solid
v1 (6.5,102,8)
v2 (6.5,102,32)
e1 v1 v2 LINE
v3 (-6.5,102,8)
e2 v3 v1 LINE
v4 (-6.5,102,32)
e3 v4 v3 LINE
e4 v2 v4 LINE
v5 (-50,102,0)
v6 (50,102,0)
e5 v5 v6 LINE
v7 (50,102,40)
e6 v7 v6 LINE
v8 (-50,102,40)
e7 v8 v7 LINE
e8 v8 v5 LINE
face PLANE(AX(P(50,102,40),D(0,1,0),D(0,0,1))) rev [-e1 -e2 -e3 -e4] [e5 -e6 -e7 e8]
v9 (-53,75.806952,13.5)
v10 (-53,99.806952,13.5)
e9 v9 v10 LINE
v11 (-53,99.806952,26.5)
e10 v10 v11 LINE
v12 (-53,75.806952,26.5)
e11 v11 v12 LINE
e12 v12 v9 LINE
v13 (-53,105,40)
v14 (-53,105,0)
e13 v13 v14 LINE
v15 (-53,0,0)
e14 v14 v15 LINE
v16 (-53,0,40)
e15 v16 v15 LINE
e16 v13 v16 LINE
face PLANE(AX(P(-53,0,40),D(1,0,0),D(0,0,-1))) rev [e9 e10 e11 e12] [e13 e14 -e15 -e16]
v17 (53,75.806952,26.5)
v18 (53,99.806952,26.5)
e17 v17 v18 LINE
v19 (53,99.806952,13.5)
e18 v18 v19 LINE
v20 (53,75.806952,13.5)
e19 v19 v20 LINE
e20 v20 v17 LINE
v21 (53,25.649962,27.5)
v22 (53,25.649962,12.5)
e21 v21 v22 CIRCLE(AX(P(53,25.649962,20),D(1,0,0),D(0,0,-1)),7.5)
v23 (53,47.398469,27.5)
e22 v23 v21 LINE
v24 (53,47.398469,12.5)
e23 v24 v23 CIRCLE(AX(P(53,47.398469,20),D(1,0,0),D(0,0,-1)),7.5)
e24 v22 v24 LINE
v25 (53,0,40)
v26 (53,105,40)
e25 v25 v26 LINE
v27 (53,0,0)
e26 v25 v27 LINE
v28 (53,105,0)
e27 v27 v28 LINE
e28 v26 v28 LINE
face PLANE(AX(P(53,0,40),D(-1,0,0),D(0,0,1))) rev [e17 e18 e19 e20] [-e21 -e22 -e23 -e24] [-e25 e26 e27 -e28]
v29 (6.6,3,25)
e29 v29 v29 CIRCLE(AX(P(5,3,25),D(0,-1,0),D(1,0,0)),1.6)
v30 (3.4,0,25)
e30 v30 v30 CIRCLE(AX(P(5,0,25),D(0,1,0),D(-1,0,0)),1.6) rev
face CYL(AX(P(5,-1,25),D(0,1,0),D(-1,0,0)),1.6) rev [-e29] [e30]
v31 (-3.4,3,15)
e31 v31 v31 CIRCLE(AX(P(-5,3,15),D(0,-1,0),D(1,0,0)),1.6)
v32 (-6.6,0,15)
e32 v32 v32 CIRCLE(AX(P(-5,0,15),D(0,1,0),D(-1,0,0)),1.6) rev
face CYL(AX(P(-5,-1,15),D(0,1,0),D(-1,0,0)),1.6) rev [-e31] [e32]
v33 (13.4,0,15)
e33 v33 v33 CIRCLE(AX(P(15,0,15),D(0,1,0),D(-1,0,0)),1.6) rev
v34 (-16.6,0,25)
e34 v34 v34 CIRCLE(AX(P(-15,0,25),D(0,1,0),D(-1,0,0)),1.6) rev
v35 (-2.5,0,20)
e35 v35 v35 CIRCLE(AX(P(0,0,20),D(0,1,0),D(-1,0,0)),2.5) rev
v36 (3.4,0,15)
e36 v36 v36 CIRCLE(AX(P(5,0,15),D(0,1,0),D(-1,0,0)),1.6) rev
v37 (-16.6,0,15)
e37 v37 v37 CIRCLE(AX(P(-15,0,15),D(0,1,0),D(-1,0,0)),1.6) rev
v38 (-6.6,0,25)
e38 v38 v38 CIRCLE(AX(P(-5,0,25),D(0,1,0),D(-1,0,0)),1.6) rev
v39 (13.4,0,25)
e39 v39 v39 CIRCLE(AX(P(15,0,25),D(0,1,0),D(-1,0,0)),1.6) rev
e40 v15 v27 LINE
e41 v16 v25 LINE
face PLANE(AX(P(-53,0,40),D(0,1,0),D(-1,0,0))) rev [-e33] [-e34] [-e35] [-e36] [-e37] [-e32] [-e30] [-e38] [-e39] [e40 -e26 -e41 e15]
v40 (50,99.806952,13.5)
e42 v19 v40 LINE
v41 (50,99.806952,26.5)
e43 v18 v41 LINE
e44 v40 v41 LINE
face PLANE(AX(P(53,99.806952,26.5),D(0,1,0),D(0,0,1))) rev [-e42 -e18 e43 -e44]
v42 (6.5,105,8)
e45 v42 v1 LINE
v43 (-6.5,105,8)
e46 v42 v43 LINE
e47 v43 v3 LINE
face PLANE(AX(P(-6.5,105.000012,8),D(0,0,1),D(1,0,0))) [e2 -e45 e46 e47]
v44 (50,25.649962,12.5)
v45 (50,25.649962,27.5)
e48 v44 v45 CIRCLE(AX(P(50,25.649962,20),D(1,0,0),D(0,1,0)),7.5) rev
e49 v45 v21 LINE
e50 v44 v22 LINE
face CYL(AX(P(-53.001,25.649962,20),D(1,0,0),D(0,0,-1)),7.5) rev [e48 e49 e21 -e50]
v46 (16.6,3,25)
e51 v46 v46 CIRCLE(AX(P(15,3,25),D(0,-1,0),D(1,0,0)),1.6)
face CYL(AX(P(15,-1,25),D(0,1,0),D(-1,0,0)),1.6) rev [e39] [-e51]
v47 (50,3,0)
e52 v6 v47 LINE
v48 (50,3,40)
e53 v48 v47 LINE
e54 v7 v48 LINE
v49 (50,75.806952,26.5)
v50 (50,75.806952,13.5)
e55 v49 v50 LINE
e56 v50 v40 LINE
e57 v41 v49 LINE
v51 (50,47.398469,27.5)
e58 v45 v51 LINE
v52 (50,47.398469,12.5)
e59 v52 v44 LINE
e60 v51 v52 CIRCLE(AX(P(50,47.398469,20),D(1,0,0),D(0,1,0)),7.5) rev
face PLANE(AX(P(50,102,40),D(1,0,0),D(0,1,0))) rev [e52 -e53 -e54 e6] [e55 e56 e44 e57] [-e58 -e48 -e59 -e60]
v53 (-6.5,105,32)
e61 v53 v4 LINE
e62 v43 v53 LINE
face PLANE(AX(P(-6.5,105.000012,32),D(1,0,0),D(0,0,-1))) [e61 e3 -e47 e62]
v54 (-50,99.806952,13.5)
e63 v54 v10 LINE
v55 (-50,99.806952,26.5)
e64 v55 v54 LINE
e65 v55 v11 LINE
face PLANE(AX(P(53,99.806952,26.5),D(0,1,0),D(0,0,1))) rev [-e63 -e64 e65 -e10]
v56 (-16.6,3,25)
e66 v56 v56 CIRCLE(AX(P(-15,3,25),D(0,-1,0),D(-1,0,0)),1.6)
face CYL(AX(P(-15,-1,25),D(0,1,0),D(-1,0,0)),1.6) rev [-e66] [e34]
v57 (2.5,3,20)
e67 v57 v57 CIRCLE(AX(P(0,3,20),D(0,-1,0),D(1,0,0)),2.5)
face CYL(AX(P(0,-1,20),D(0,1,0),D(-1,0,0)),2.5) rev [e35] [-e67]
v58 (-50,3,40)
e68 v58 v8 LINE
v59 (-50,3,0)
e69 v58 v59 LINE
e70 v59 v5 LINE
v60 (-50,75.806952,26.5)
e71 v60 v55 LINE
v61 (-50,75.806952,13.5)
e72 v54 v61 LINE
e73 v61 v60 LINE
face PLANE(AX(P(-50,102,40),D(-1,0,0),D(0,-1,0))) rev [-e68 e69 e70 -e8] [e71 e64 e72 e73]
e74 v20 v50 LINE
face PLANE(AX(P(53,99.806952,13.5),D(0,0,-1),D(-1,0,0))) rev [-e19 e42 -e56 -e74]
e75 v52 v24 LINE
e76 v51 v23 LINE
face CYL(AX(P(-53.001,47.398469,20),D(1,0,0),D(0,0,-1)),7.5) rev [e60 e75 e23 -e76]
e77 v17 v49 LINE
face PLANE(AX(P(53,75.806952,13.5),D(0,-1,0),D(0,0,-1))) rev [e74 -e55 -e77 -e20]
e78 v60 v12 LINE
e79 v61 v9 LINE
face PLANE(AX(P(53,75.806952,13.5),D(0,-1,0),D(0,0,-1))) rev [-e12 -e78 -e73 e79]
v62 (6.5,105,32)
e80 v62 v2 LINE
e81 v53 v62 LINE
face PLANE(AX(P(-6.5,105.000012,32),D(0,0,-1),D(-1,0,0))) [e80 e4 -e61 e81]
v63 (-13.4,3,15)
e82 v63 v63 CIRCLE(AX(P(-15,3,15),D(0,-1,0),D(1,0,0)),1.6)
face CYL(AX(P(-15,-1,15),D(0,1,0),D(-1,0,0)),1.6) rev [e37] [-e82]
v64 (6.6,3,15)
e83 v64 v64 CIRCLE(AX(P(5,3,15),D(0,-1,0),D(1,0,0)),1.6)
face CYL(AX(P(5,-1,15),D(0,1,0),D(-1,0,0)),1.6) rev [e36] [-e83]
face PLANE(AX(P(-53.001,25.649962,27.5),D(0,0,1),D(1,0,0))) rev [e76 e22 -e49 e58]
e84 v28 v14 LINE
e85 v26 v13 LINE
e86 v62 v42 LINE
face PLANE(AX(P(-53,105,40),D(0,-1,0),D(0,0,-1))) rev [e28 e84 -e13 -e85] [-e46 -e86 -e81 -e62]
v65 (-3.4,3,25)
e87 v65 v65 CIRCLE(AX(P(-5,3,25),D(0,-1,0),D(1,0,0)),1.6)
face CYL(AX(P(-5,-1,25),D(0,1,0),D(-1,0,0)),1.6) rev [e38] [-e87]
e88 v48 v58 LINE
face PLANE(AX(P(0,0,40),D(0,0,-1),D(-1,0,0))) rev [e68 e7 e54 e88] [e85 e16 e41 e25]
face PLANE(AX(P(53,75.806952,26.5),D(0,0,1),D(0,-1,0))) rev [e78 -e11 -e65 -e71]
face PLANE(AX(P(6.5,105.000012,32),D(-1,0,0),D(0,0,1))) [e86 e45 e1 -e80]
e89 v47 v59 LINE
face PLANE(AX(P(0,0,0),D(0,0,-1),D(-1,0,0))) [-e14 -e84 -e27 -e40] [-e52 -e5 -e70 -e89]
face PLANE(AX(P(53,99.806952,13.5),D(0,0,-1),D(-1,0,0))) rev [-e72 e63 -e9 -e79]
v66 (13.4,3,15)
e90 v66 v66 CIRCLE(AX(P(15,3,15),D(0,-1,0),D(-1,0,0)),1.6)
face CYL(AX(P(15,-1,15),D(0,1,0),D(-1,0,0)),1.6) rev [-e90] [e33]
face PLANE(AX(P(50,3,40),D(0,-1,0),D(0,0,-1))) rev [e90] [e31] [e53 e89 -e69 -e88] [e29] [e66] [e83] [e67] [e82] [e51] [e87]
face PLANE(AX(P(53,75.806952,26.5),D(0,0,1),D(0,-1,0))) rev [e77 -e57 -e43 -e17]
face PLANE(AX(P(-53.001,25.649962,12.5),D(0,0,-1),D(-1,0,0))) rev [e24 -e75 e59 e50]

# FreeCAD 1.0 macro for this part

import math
import FreeCAD as App
import Part
import Sketcher

V = App.Vector
Q = App.Units.Quantity

doc = App.newDocument("Part")
params = doc.addObject("Spreadsheet::Sheet", "Params")
for row, (alias, value) in enumerate([
    ("sketch1_width", "106 mm"),
    ("sketch1_height", "105 mm"),
    ("pad1_length", "40 mm"),
    ("sketch2_width", "100 mm"),
    ("sketch2_height", "99 mm"),
    ("sketch3_diameter", "5 mm"),
    ("sketch3_diameter2", "3.2 mm"),
    ("pocket2_length", "1 mm"),
    ("pocket2_length2", "3 mm"),
    ("sketch4_width", "13 mm"),
    ("sketch4_height", "24 mm"),
    ("sketch5_width", "13 mm"),
    ("sketch5_height", "24 mm"),
    ("pocket4_length", "125.233651 mm"),
    ("sketch6_width", "24 mm"),
    ("sketch6_height", "13 mm"),
    ("sketch7_radius", "7.5 mm"),
    ("sketch8_radius", "7.5 mm"),
    ("pocket7_length", "155.470062 mm"),
], start=1):
    params.set(f"A{row}", alias)
    params.set(f"B{row}", "=" + value)
    params.setAlias(f"B{row}", alias)

body = doc.addObject("PartDesign::Body", "Body")

sketch1 = doc.addObject("Sketcher::SketchObject", "Sketch")
body.addObject(sketch1)
sketch1.AttachmentSupport = (doc.XY_Plane, [""])
sketch1.MapMode = "FlatFace"
sketch1.addGeometry(Part.LineSegment(V(-53, 105, 0), V(-53, 0, 0)), False)
sketch1.addGeometry(Part.LineSegment(V(-53, 0, 0), V(53, 0, 0)), False)
sketch1.addGeometry(Part.LineSegment(V(53, 0, 0), V(53, 105, 0)), False)
sketch1.addGeometry(Part.LineSegment(V(53, 105, 0), V(-53, 105, 0)), False)
sketch1.addConstraint(Sketcher.Constraint("Coincident", 0, 2, 1, 1))
sketch1.addConstraint(Sketcher.Constraint("Coincident", 1, 2, 2, 1))
sketch1.addConstraint(Sketcher.Constraint("Coincident", 2, 2, 3, 1))
sketch1.addConstraint(Sketcher.Constraint("Coincident", 3, 2, 0, 1))
sketch1.addConstraint(Sketcher.Constraint("Vertical", 0))
sketch1.addConstraint(Sketcher.Constraint("Horizontal", 1))
sketch1.addConstraint(Sketcher.Constraint("Vertical", 2))
sketch1.addConstraint(Sketcher.Constraint("Horizontal", 3))
sketch1.addConstraint(Sketcher.Constraint("Symmetric", 0, 2, 1, 2, -1, 1))
sketch1.addConstraint(Sketcher.Constraint("DistanceX", 1, 1, 1, 2, Q("106 mm")))
sketch1.addConstraint(Sketcher.Constraint("DistanceY", 0, 2, 0, 1, Q("105 mm")))
sketch1.setExpression("Constraints[9]", "Params.sketch1_width")
sketch1.setExpression("Constraints[10]", "Params.sketch1_height")
pad1 = doc.addObject("PartDesign::Pad", "Pad")
body.addObject(pad1)
pad1.Profile = sketch1
pad1.setExpression("Length", "Params.pad1_length")

sketch2 = doc.addObject("Sketcher::SketchObject", "Sketch001")
body.addObject(sketch2)
sketch2.AttachmentSupport = (doc.XY_Plane, [""])
sketch2.MapMode = "FlatFace"
sketch2.addGeometry(Part.LineSegment(V(50, 102, 0), V(50, 3, 0)), False)
sketch2.addGeometry(Part.LineSegment(V(50, 3, 0), V(-50, 3, 0)), False)
sketch2.addGeometry(Part.LineSegment(V(-50, 3, 0), V(-50, 102, 0)), False)
sketch2.addGeometry(Part.LineSegment(V(-50, 102, 0), V(50, 102, 0)), False)
sketch2.addConstraint(Sketcher.Constraint("Coincident", 0, 2, 1, 1))
sketch2.addConstraint(Sketcher.Constraint("Coincident", 1, 2, 2, 1))
sketch2.addConstraint(Sketcher.Constraint("Coincident", 2, 2, 3, 1))
sketch2.addConstraint(Sketcher.Constraint("Coincident", 3, 2, 0, 1))
sketch2.addConstraint(Sketcher.Constraint("Vertical", 0))
sketch2.addConstraint(Sketcher.Constraint("Horizontal", 1))
sketch2.addConstraint(Sketcher.Constraint("Vertical", 2))
sketch2.addConstraint(Sketcher.Constraint("Horizontal", 3))
sketch2.addConstraint(Sketcher.Constraint("DistanceX", 1, 2, 1, 1, Q("100 mm")))
sketch2.addConstraint(Sketcher.Constraint("DistanceY", 0, 2, 0, 1, Q("99 mm")))
sketch2.addConstraint(Sketcher.Constraint("DistanceX", -1, 1, 0, 2, Q("50 mm")))
sketch2.addConstraint(Sketcher.Constraint("DistanceY", -1, 1, 0, 2, Q("3 mm")))
sketch2.setExpression("Constraints[8]", "Params.sketch2_width")
sketch2.setExpression("Constraints[9]", "Params.sketch2_height")
pocket1 = doc.addObject("PartDesign::Pocket", "Pocket")
body.addObject(pocket1)
pocket1.Profile = sketch2
pocket1.Type = "ThroughAll"
pocket1.Midplane = True

sketch3 = doc.addObject("Sketcher::SketchObject", "Sketch002")
body.addObject(sketch3)
sketch3.AttachmentSupport = (doc.XZ_Plane, [""])
sketch3.MapMode = "FlatFace"
sketch3.addGeometry(Part.Circle(V(0, 20, 0), V(0, 0, 1), 2.5), False)
sketch3.addGeometry(Part.Circle(V(5, 25, 0), V(0, 0, 1), 1.6), False)
sketch3.addGeometry(Part.Circle(V(5, 15, 0), V(0, 0, 1), 1.6), False)
sketch3.addGeometry(Part.Circle(V(-5, 15, 0), V(0, 0, 1), 1.6), False)
sketch3.addGeometry(Part.Circle(V(-5, 25, 0), V(0, 0, 1), 1.6), False)
sketch3.addGeometry(Part.Circle(V(15, 25, 0), V(0, 0, 1), 1.6), False)
sketch3.addGeometry(Part.Circle(V(-15, 25, 0), V(0, 0, 1), 1.6), False)
sketch3.addGeometry(Part.Circle(V(15, 15, 0), V(0, 0, 1), 1.6), False)
sketch3.addGeometry(Part.Circle(V(-15, 15, 0), V(0, 0, 1), 1.6), False)
sketch3.addConstraint(Sketcher.Constraint("Equal", 1, 2))
sketch3.addConstraint(Sketcher.Constraint("Equal", 2, 3))
sketch3.addConstraint(Sketcher.Constraint("Equal", 3, 4))
sketch3.addConstraint(Sketcher.Constraint("Equal", 4, 5))
sketch3.addConstraint(Sketcher.Constraint("Equal", 5, 6))
sketch3.addConstraint(Sketcher.Constraint("Equal", 6, 7))
sketch3.addConstraint(Sketcher.Constraint("Equal", 7, 8))
sketch3.addConstraint(Sketcher.Constraint("Symmetric", 2, 3, 3, 3, -2))
sketch3.addConstraint(Sketcher.Constraint("Symmetric", 1, 3, 4, 3, -2))
sketch3.addConstraint(Sketcher.Constraint("Symmetric", 5, 3, 6, 3, -2))
sketch3.addConstraint(Sketcher.Constraint("Symmetric", 7, 3, 8, 3, -2))
sketch3.addConstraint(Sketcher.Constraint("PointOnObject", 0, 3, -2))
sketch3.addConstraint(Sketcher.Constraint("Horizontal", 4, 3, 5, 3))
sketch3.addConstraint(Sketcher.Constraint("Horizontal", 3, 3, 7, 3))
sketch3.addConstraint(Sketcher.Constraint("Vertical", 1, 3, 2, 3))
sketch3.addConstraint(Sketcher.Constraint("Vertical", 5, 3, 7, 3))
sketch3.addConstraint(Sketcher.Constraint("Diameter", 0, Q("5 mm")))
sketch3.addConstraint(Sketcher.Constraint("Diameter", 1, Q("3.2 mm")))
sketch3.addConstraint(Sketcher.Constraint("DistanceY", -1, 1, 0, 3, Q("20 mm")))
sketch3.addConstraint(Sketcher.Constraint("DistanceX", -1, 1, 1, 3, Q("5 mm")))
sketch3.addConstraint(Sketcher.Constraint("DistanceY", -1, 1, 1, 3, Q("25 mm")))
sketch3.addConstraint(Sketcher.Constraint("DistanceY", -1, 1, 2, 3, Q("15 mm")))
sketch3.addConstraint(Sketcher.Constraint("DistanceX", -1, 1, 5, 3, Q("15 mm")))
sketch3.setExpression("Constraints[16]", "Params.sketch3_diameter")
sketch3.setExpression("Constraints[17]", "Params.sketch3_diameter2")
pocket2 = doc.addObject("PartDesign::Pocket", "Pocket001")
body.addObject(pocket2)
pocket2.Profile = sketch3
pocket2.Type = "TwoLengths"
pocket2.setExpression("Length", "Params.pocket2_length")
pocket2.setExpression("Length2", "Params.pocket2_length2")
pocket2.Reversed = True

sketch4 = doc.addObject("Sketcher::SketchObject", "Sketch003")
body.addObject(sketch4)
sketch4.AttachmentSupport = (doc.XZ_Plane, [""])
sketch4.MapMode = "FlatFace"
sketch4.AttachmentOffset = App.Placement(V(0, 0, -105), App.Rotation())
sketch4.addGeometry(Part.LineSegment(V(-6.5, 8, 0), V(-6.5, 32, 0)), False)
sketch4.addGeometry(Part.LineSegment(V(-6.5, 32, 0), V(6.5, 32, 0)), False)
sketch4.addGeometry(Part.LineSegment(V(6.5, 32, 0), V(6.5, 8, 0)), False)
sketch4.addGeometry(Part.LineSegment(V(6.5, 8, 0), V(-6.5, 8, 0)), False)
sketch4.addConstraint(Sketcher.Constraint("Coincident", 0, 2, 1, 1))
sketch4.addConstraint(Sketcher.Constraint("Coincident", 1, 2, 2, 1))
sketch4.addConstraint(Sketcher.Constraint("Coincident", 2, 2, 3, 1))
sketch4.addConstraint(Sketcher.Constraint("Coincident", 3, 2, 0, 1))
sketch4.addConstraint(Sketcher.Constraint("Vertical", 0))
sketch4.addConstraint(Sketcher.Constraint("Horizontal", 1))
sketch4.addConstraint(Sketcher.Constraint("Vertical", 2))
sketch4.addConstraint(Sketcher.Constraint("Horizontal", 3))
sketch4.addConstraint(Sketcher.Constraint("DistanceX", 1, 1, 1, 2, Q("13 mm")))
sketch4.addConstraint(Sketcher.Constraint("DistanceY", 0, 1, 0, 2, Q("24 mm")))
sketch4.addConstraint(Sketcher.Constraint("DistanceY", -1, 1, 0, 2, Q("32 mm")))
sketch4.addConstraint(Sketcher.Constraint("DistanceX", 0, 2, -1, 1, Q("6.5 mm")))
sketch4.setExpression("Constraints[8]", "Params.sketch4_width")
sketch4.setExpression("Constraints[9]", "Params.sketch4_height")
pocket3 = doc.addObject("PartDesign::Pocket", "Pocket002")
body.addObject(pocket3)
pocket3.Profile = sketch4
pocket3.Type = "UpToFirst"
pocket3.Reversed = True

sketch5 = doc.addObject("Sketcher::SketchObject", "Sketch004")
body.addObject(sketch5)
sketch5.AttachmentSupport = (doc.XZ_Plane, [""])
sketch5.MapMode = "FlatFace"
sketch5.AttachmentOffset = App.Placement(V(0, 0, -105), App.Rotation())
sketch5.addGeometry(Part.LineSegment(V(-6.5, 8, 0), V(-6.5, 32, 0)), False)
sketch5.addGeometry(Part.LineSegment(V(-6.5, 32, 0), V(6.5, 32, 0)), False)
sketch5.addGeometry(Part.LineSegment(V(6.5, 32, 0), V(6.5, 8, 0)), False)
sketch5.addGeometry(Part.LineSegment(V(6.5, 8, 0), V(-6.5, 8, 0)), False)
sketch5.addConstraint(Sketcher.Constraint("Coincident", 0, 2, 1, 1))
sketch5.addConstraint(Sketcher.Constraint("Coincident", 1, 2, 2, 1))
sketch5.addConstraint(Sketcher.Constraint("Coincident", 2, 2, 3, 1))
sketch5.addConstraint(Sketcher.Constraint("Coincident", 3, 2, 0, 1))
sketch5.addConstraint(Sketcher.Constraint("Vertical", 0))
sketch5.addConstraint(Sketcher.Constraint("Horizontal", 1))
sketch5.addConstraint(Sketcher.Constraint("Vertical", 2))
sketch5.addConstraint(Sketcher.Constraint("Horizontal", 3))
sketch5.addConstraint(Sketcher.Constraint("DistanceX", 1, 1, 1, 2, Q("13 mm")))
sketch5.addConstraint(Sketcher.Constraint("DistanceY", 0, 1, 0, 2, Q("24 mm")))
sketch5.addConstraint(Sketcher.Constraint("DistanceY", -1, 1, 0, 2, Q("32 mm")))
sketch5.addConstraint(Sketcher.Constraint("DistanceX", 0, 2, -1, 1, Q("6.5 mm")))
sketch5.setExpression("Constraints[8]", "Params.sketch5_width")
sketch5.setExpression("Constraints[9]", "Params.sketch5_height")
pocket4 = doc.addObject("PartDesign::Pocket", "Pocket003")
body.addObject(pocket4)
pocket4.Profile = sketch5
pocket4.setExpression("Length", "Params.pocket4_length")

sketch6 = doc.addObject("Sketcher::SketchObject", "Sketch005")
body.addObject(sketch6)
sketch6.AttachmentSupport = (doc.YZ_Plane, [""])
sketch6.MapMode = "FlatFace"
sketch6.AttachmentOffset = App.Placement(V(0, 0, -53), App.Rotation())
sketch6.addGeometry(Part.LineSegment(V(99.806952, 13.5, 0), V(75.806952, 13.5, 0)), False)
sketch6.addGeometry(Part.LineSegment(V(75.806952, 13.5, 0), V(75.806952, 26.5, 0)), False)
sketch6.addGeometry(Part.LineSegment(V(75.806952, 26.5, 0), V(99.806952, 26.5, 0)), False)
sketch6.addGeometry(Part.LineSegment(V(99.806952, 26.5, 0), V(99.806952, 13.5, 0)), False)
sketch6.addConstraint(Sketcher.Constraint("Coincident", 0, 2, 1, 1))
sketch6.addConstraint(Sketcher.Constraint("Coincident", 1, 2, 2, 1))
sketch6.addConstraint(Sketcher.Constraint("Coincident", 2, 2, 3, 1))
sketch6.addConstraint(Sketcher.Constraint("Coincident", 3, 2, 0, 1))
sketch6.addConstraint(Sketcher.Constraint("Horizontal", 0))
sketch6.addConstraint(Sketcher.Constraint("Vertical", 1))
sketch6.addConstraint(Sketcher.Constraint("Horizontal", 2))
sketch6.addConstraint(Sketcher.Constraint("Vertical", 3))
sketch6.addConstraint(Sketcher.Constraint("DistanceX", 0, 2, 0, 1, Q("24 mm")))
sketch6.addConstraint(Sketcher.Constraint("DistanceY", 1, 1, 1, 2, Q("13 mm")))
sketch6.addConstraint(Sketcher.Constraint("DistanceY", -1, 1, 0, 2, Q("13.5 mm")))
sketch6.addConstraint(Sketcher.Constraint("DistanceX", -1, 1, 0, 2, Q("75.806952 mm")))
sketch6.setExpression("Constraints[8]", "Params.sketch6_width")
sketch6.setExpression("Constraints[9]", "Params.sketch6_height")
pocket5 = doc.addObject("PartDesign::Pocket", "Pocket004")
body.addObject(pocket5)
pocket5.Profile = sketch6
pocket5.Type = "ThroughAll"
pocket5.Midplane = True

sketch7 = doc.addObject("Sketcher::SketchObject", "Sketch006")
body.addObject(sketch7)
sketch7.AttachmentSupport = (doc.YZ_Plane, [""])
sketch7.MapMode = "FlatFace"
sketch7.AttachmentOffset = App.Placement(V(0, 0, 53), App.Rotation())
sketch7.addGeometry(Part.LineSegment(V(47.398469, 27.5, 0), V(25.649962, 27.5, 0)), False)
sketch7.addGeometry(Part.ArcOfCircle(Part.Circle(V(25.649962, 20, 0), V(0, 0, 1), 7.5), math.radians(90), math.radians(270)), False)
sketch7.addGeometry(Part.LineSegment(V(25.649962, 12.5, 0), V(47.398469, 12.5, 0)), False)
sketch7.addGeometry(Part.ArcOfCircle(Part.Circle(V(47.398469, 20, 0), V(0, 0, 1), 7.5), math.radians(-90), math.radians(90)), False)
sketch7.addConstraint(Sketcher.Constraint("Tangent", 0, 2, 1, 1))
sketch7.addConstraint(Sketcher.Constraint("Tangent", 1, 2, 2, 1))
sketch7.addConstraint(Sketcher.Constraint("Tangent", 2, 2, 3, 1))
sketch7.addConstraint(Sketcher.Constraint("Tangent", 3, 2, 0, 1))
sketch7.addConstraint(Sketcher.Constraint("Horizontal", 0))
sketch7.addConstraint(Sketcher.Constraint("Horizontal", 2))
sketch7.addConstraint(Sketcher.Constraint("Radius", 1, Q("7.5 mm")))
sketch7.addConstraint(Sketcher.Constraint("DistanceY", -1, 1, 1, 3, Q("20 mm")))
sketch7.addConstraint(Sketcher.Constraint("DistanceX", 0, 2, 0, 1, Q("21.748507 mm")))
sketch7.addConstraint(Sketcher.Constraint("DistanceX", -1, 1, 1, 3, Q("25.649962 mm")))
sketch7.setExpression("Constraints[6]", "Params.sketch7_radius")
pocket6 = doc.addObject("PartDesign::Pocket", "Pocket005")
body.addObject(pocket6)
pocket6.Profile = sketch7
pocket6.Type = "UpToFirst"

sketch8 = doc.addObject("Sketcher::SketchObject", "Sketch007")
body.addObject(sketch8)
sketch8.AttachmentSupport = (doc.YZ_Plane, [""])
sketch8.MapMode = "FlatFace"
sketch8.AttachmentOffset = App.Placement(V(0, 0, 53), App.Rotation())
sketch8.addGeometry(Part.LineSegment(V(47.398469, 27.5, 0), V(25.649962, 27.5, 0)), False)
sketch8.addGeometry(Part.ArcOfCircle(Part.Circle(V(25.649962, 20, 0), V(0, 0, 1), 7.5), math.radians(90), math.radians(270)), False)
sketch8.addGeometry(Part.LineSegment(V(25.649962, 12.5, 0), V(47.398469, 12.5, 0)), False)
sketch8.addGeometry(Part.ArcOfCircle(Part.Circle(V(47.398469, 20, 0), V(0, 0, 1), 7.5), math.radians(-90), math.radians(90)), False)
sketch8.addConstraint(Sketcher.Constraint("Tangent", 0, 2, 1, 1))
sketch8.addConstraint(Sketcher.Constraint("Tangent", 1, 2, 2, 1))
sketch8.addConstraint(Sketcher.Constraint("Tangent", 2, 2, 3, 1))
sketch8.addConstraint(Sketcher.Constraint("Tangent", 3, 2, 0, 1))
sketch8.addConstraint(Sketcher.Constraint("Horizontal", 0))
sketch8.addConstraint(Sketcher.Constraint("Horizontal", 2))
sketch8.addConstraint(Sketcher.Constraint("Radius", 1, Q("7.5 mm")))
sketch8.addConstraint(Sketcher.Constraint("DistanceY", -1, 1, 1, 3, Q("20 mm")))
sketch8.addConstraint(Sketcher.Constraint("DistanceX", 0, 2, 0, 1, Q("21.748507 mm")))
sketch8.addConstraint(Sketcher.Constraint("DistanceX", -1, 1, 1, 3, Q("25.649962 mm")))
sketch8.setExpression("Constraints[6]", "Params.sketch8_radius")
pocket7 = doc.addObject("PartDesign::Pocket", "Pocket006")
body.addObject(pocket7)
pocket7.Profile = sketch8
pocket7.setExpression("Length", "Params.pocket7_length")
pocket7.Reversed = True

doc.recompute()
